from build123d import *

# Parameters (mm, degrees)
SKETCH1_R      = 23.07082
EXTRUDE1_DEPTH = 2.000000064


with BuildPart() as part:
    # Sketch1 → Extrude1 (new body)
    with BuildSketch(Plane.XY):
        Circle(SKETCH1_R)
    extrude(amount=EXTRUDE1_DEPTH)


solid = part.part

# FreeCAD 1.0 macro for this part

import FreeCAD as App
import Part
import Sketcher

V = App.Vector

doc = App.newDocument("Part")
params = doc.addObject("Spreadsheet::Sheet", "Params")
for row, (alias, value) in enumerate([
    ("pad1_length", "2 mm"),
], start=1):
    params.set(f"A{row}", alias)
    params.set(f"B{row}", "=" + value)
    params.setAlias(f"B{row}", alias)

body = doc.addObject("PartDesign::Body", "Body")

sketch1 = body.newObject("Sketcher::SketchObject", "Sketch")
sketch1.AttachmentSupport = (doc.getObject("XY_Plane"), [""])
sketch1.MapMode = "FlatFace"
sketch1.addGeometry(Part.Circle(V(0, 0, 0), V(0, 0, 1), 23), False)
sketch1.addConstraint([
    Sketcher.Constraint("Coincident", 0, 3, -1, 1),
    Sketcher.Constraint("Diameter", 0, 46.14164),
])
pad1 = body.newObject("PartDesign::Pad", "Pad")
pad1.Profile = sketch1
pad1.setExpression("Length", "Params.pad1_length")

doc.recompute()
